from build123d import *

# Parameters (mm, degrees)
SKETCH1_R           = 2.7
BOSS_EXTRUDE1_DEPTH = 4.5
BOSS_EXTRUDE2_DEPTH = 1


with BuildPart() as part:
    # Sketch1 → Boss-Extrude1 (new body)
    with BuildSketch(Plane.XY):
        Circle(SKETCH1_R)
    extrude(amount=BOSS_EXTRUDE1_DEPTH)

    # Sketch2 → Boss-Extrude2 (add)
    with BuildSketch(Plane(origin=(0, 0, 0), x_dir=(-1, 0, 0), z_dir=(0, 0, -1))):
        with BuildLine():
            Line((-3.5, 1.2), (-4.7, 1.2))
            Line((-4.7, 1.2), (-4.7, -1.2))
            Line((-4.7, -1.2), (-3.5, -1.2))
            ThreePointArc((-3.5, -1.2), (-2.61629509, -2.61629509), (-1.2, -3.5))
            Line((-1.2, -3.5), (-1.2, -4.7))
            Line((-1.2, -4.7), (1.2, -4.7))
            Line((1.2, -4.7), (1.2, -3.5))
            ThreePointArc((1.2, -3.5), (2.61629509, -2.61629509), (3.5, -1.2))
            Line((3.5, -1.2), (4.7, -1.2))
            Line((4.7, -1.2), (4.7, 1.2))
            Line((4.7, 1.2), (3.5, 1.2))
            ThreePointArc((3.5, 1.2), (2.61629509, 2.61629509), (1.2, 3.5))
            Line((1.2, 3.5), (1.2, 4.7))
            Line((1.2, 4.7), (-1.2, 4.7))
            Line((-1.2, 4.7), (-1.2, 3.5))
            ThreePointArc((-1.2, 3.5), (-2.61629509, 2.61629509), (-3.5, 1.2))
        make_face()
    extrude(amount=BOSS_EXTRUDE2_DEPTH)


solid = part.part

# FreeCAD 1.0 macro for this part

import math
import FreeCAD as App
import Part
import Sketcher

doc = App.newDocument("Part")
body = doc.addObject("PartDesign::Body", "Body")

# Sketch on XY plane
sketch1 = body.newObject("Sketcher::SketchObject", "Sketch")
sketch1.AttachmentSupport = (doc.getObject("XY_Plane"), [""])
sketch1.MapMode = "FlatFace"
sketch1.addGeometry(Part.Circle(App.Vector(0, 0, 0), App.Vector(0, 0, 1), 2.7), False)
sketch1.addConstraint([
    Sketcher.Constraint("Coincident", 0, 3, -1, 1),
    Sketcher.Constraint("Diameter", 0, 5.4),
])
pad1 = body.newObject("PartDesign::Pad", "Pad")
pad1.Profile = sketch1
pad1.Length = 4.5

# Sketch on XY plane
sketch2 = body.newObject("Sketcher::SketchObject", "Sketch001")
sketch2.AttachmentSupport = (doc.getObject("XY_Plane"), [""])
sketch2.MapMode = "FlatFace"
sketch2.addGeometry([
    Part.LineSegment(App.Vector(3.5, 1.2, 0), App.Vector(4.7, 1.2, 0)),  # 0
    Part.LineSegment(App.Vector(4.7, 1.2, 0), App.Vector(4.7, -1.2, 0)),  # 1
    Part.LineSegment(App.Vector(4.7, -1.2, 0), App.Vector(3.5, -1.2, 0)),  # 2
    Part.ArcOfCircle(Part.Circle(App.Vector(0, 0, 0), App.Vector(0, 0, 1), 3.7), math.radians(-71), math.radians(-19)),  # 3
    Part.LineSegment(App.Vector(1.2, -3.5, 0), App.Vector(1.2, -4.7, 0)),  # 4
    Part.LineSegment(App.Vector(1.2, -4.7, 0), App.Vector(-1.2, -4.7, 0)),  # 5
    Part.LineSegment(App.Vector(-1.2, -4.7, 0), App.Vector(-1.2, -3.5, 0)),  # 6
    Part.ArcOfCircle(Part.Circle(App.Vector(0, 0, 0), App.Vector(0, 0, 1), 3.7), math.radians(-161), math.radians(-109)),  # 7
    Part.LineSegment(App.Vector(-3.5, -1.2, 0), App.Vector(-4.7, -1.2, 0)),  # 8
    Part.LineSegment(App.Vector(-4.7, -1.2, 0), App.Vector(-4.7, 1.2, 0)),  # 9
    Part.LineSegment(App.Vector(-4.7, 1.2, 0), App.Vector(-3.5, 1.2, 0)),  # 10
    Part.ArcOfCircle(Part.Circle(App.Vector(0, 0, 0), App.Vector(0, 0, 1), 3.7), math.radians(109), math.radians(161)),  # 11
    Part.LineSegment(App.Vector(-1.2, 3.5, 0), App.Vector(-1.2, 4.7, 0)),  # 12
    Part.LineSegment(App.Vector(-1.2, 4.7, 0), App.Vector(1.2, 4.7, 0)),  # 13
    Part.LineSegment(App.Vector(1.2, 4.7, 0), App.Vector(1.2, 3.5, 0)),  # 14
    Part.ArcOfCircle(Part.Circle(App.Vector(0, 0, 0), App.Vector(0, 0, 1), 3.7), math.radians(19), math.radians(71)),  # 15
], False)
sketch2.addConstraint([
    Sketcher.Constraint("Coincident", 0, 2, 1, 1),
    Sketcher.Constraint("Coincident", 1, 2, 2, 1),
    Sketcher.Constraint("Coincident", 2, 2, 3, 2),
    Sketcher.Constraint("Coincident", 3, 1, 4, 1),
    Sketcher.Constraint("Coincident", 4, 2, 5, 1),
    Sketcher.Constraint("Coincident", 5, 2, 6, 1),
    Sketcher.Constraint("Coincident", 6, 2, 7, 2),
    Sketcher.Constraint("Coincident", 7, 1, 8, 1),
    Sketcher.Constraint("Coincident", 8, 2, 9, 1),
    Sketcher.Constraint("Coincident", 9, 2, 10, 1),
    Sketcher.Constraint("Coincident", 10, 2, 11, 2),
    Sketcher.Constraint("Coincident", 11, 1, 12, 1),
    Sketcher.Constraint("Coincident", 12, 2, 13, 1),
    Sketcher.Constraint("Coincident", 13, 2, 14, 1),
    Sketcher.Constraint("Coincident", 14, 2, 15, 2),
    Sketcher.Constraint("Coincident", 15, 1, 0, 1),
    Sketcher.Constraint("Horizontal", 0),
    Sketcher.Constraint("Vertical", 1),
    Sketcher.Constraint("Horizontal", 2),
    Sketcher.Constraint("Vertical", 4),
    Sketcher.Constraint("Horizontal", 5),
    Sketcher.Constraint("Vertical", 6),
    Sketcher.Constraint("Horizontal", 8),
    Sketcher.Constraint("Vertical", 9),
    Sketcher.Constraint("Horizontal", 10),
    Sketcher.Constraint("Vertical", 12),
    Sketcher.Constraint("Horizontal", 13),
    Sketcher.Constraint("Vertical", 14),
    Sketcher.Constraint("Coincident", 3, 3, -1, 1),
    Sketcher.Constraint("Coincident", 7, 3, -1, 1),
    Sketcher.Constraint("Coincident", 11, 3, -1, 1),
    Sketcher.Constraint("Coincident", 15, 3, -1, 1),
    Sketcher.Constraint("Equal", 3, 7),
    Sketcher.Constraint("Equal", 7, 11),
    Sketcher.Constraint("Equal", 11, 15),
    Sketcher.Constraint("Symmetric", 0, 2, 8, 2, -1, 1),
    Sketcher.Constraint("Symmetric", 4, 2, 12, 2, -1, 1),
    Sketcher.Constraint("Horizontal", 3, 1, 6, 2),
    Sketcher.Constraint("Horizontal", 2, 2, 7, 1),
    Sketcher.Constraint("Horizontal", 0, 2, 9, 2),
    Sketcher.Constraint("Horizontal", 11, 1, 14, 2),
    Sketcher.Constraint("Equal", 13, 1),
    Sketcher.Constraint("Equal", 10, 4),
    Sketcher.Constraint("Radius", 3, 3.7),
    Sketcher.Constraint("DistanceX", 0, 1, 0, 2, 1.2),
    Sketcher.Constraint("DistanceX", 5, 2, 5, 1, 2.4),
])
pad2 = body.newObject("PartDesign::Pad", "Pad001")
pad2.Profile = sketch2
pad2.Length = 1
pad2.Reversed = True

doc.recompute()
